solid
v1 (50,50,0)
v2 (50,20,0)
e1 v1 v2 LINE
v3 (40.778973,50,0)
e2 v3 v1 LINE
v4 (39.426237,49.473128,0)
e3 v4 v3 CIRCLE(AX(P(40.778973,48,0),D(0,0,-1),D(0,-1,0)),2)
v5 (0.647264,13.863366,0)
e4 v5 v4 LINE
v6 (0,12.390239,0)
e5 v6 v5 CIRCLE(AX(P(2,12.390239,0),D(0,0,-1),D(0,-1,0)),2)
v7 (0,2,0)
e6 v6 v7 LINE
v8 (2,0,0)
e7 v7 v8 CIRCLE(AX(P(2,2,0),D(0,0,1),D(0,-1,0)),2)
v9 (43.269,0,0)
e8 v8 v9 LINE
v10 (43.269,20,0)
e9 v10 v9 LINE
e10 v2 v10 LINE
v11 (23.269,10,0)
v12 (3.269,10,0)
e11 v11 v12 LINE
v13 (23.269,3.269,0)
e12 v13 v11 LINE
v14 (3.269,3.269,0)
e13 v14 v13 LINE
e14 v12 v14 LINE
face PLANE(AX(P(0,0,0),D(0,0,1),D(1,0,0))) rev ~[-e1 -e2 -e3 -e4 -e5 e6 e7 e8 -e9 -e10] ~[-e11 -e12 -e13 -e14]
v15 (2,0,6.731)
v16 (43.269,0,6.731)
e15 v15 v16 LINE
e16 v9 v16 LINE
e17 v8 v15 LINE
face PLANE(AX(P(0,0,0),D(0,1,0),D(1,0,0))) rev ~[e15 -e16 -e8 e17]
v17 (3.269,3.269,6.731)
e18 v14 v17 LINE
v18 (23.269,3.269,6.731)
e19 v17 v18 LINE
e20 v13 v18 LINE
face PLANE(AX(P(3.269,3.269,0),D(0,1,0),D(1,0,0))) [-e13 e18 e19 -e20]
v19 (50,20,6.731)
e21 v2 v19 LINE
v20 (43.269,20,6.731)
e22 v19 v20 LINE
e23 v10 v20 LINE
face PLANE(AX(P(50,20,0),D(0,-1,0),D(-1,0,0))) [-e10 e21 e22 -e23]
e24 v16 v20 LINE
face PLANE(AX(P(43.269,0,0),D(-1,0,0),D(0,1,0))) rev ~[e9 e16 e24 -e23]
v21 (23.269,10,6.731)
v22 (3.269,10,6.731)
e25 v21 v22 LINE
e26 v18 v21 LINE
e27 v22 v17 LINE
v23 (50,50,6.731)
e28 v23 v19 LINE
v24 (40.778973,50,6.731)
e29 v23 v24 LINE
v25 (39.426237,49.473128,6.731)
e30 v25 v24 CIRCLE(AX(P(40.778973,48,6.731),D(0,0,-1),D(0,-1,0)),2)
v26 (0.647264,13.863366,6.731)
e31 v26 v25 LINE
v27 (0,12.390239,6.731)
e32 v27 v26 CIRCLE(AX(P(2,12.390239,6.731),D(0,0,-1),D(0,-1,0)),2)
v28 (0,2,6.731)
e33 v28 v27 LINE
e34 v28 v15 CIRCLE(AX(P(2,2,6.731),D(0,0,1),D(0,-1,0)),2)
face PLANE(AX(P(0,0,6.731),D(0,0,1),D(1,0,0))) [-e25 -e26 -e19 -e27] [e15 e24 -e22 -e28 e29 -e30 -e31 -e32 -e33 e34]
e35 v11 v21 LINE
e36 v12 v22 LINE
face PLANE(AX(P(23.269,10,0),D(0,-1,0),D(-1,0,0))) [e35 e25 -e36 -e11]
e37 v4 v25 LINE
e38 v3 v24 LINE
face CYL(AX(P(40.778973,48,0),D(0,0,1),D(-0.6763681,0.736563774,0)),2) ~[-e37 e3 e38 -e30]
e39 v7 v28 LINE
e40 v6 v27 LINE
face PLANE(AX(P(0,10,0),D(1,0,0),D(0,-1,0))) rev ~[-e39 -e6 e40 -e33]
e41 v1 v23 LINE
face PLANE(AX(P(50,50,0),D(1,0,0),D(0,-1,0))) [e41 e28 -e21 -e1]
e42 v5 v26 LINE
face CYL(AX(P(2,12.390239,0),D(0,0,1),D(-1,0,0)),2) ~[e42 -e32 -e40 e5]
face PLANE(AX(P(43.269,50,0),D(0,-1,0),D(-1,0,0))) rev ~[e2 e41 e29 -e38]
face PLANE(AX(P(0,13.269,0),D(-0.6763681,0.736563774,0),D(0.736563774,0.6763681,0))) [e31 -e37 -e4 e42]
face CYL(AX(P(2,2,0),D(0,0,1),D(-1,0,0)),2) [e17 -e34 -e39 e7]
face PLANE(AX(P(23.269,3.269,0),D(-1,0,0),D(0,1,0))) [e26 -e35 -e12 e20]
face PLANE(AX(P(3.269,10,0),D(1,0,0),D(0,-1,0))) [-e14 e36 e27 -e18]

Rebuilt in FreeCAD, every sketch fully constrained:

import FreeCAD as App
import Part
import Sketcher
from FreeCAD import Vector


def edges_at(feature, points):
    """Names of the edges that pass closest to the given points."""
    edges = feature.Shape.Edges
    near = lambda p: min(range(len(edges)), key=lambda i: edges[i].distToShape(Part.Vertex(*p))[0])
    return sorted({f"Edge{near(p) + 1}" for p in points})


def add_polygon(sketch, points):
    """Adds a closed chain of lines whose ends are joined by coincident constraints."""
    first, n = sketch.GeometryCount, len(points)
    for a, b in zip(points, points[1:] + points[:1]):
        sketch.addGeometry(Part.LineSegment(App.Vector(*a, 0), App.Vector(*b, 0)), False)
    for i in range(n):
        sketch.addConstraint(Sketcher.Constraint("Coincident", first + i, 2, first + (i + 1) % n, 1))

doc = App.newDocument("Part")
body = doc.addObject("PartDesign::Body", "Body")

# Sketch on XY plane
sketch1 = body.newObject("Sketcher::SketchObject", "Sketch")
sketch1.AttachmentSupport = (doc.getObject("XY_Plane"), [""])
sketch1.MapMode = "FlatFace"
add_polygon(sketch1, [(0, 0), (43.269, 0), (43.269, 20), (50, 20), (50, 50), (40, 50), (0, 13.269)])  # lines 0-6
add_polygon(sketch1, [(3.269, 3.269), (3.269, 10), (23.269, 10), (23.269, 3.269)])  # lines 7-10
sketch1.addConstraint([
    Sketcher.Constraint("Horizontal", 0),
    Sketcher.Constraint("Vertical", 1),
    Sketcher.Constraint("Horizontal", 2),
    Sketcher.Constraint("Vertical", 3),
    Sketcher.Constraint("Horizontal", 4),
    Sketcher.Constraint("Vertical", 6),
    Sketcher.Constraint("Vertical", 7),
    Sketcher.Constraint("Horizontal", 8),
    Sketcher.Constraint("Vertical", 9),
    Sketcher.Constraint("Horizontal", 10),
    Sketcher.Constraint("Coincident", 6, 2, -1, 1),
    Sketcher.Constraint("Equal", 10, 1),
    Sketcher.Constraint("Equal", 2, 7),
    Sketcher.Constraint("DistanceX", 4, 2, 4, 1, 10.0),
    Sketcher.Constraint("DistanceX", 8, 1, 8, 2, 20.0),
    Sketcher.Constraint("DistanceY", 3, 1, 3, 2, 30.0),
    Sketcher.Constraint("DistanceY", -1, 1, 7, 2, 10.0),
    Sketcher.Constraint("DistanceX", 8, 2, 0, 2, 20.0),
    Sketcher.Constraint("DistanceY", 9, 2, 5, 2, 10.0),
    Sketcher.Constraint("DistanceX", 2, 1, 2, 2, 6.731),
    Sketcher.Constraint("DistanceX", -1, 1, 7, 2, 3.269),
])
pad1 = body.newObject("PartDesign::Pad", "Pad")
pad1.Profile = sketch1
pad1.Length = 6.731
doc.recompute()

fillet = body.newObject("PartDesign::Fillet", "Fillet")
fillet.Base = (pad1, edges_at(pad1, [(40, 50, 3.365), (0, 13.269, 3.365), (0, 0, 3.365)]))
fillet.Radius = 2

doc.recompute()
